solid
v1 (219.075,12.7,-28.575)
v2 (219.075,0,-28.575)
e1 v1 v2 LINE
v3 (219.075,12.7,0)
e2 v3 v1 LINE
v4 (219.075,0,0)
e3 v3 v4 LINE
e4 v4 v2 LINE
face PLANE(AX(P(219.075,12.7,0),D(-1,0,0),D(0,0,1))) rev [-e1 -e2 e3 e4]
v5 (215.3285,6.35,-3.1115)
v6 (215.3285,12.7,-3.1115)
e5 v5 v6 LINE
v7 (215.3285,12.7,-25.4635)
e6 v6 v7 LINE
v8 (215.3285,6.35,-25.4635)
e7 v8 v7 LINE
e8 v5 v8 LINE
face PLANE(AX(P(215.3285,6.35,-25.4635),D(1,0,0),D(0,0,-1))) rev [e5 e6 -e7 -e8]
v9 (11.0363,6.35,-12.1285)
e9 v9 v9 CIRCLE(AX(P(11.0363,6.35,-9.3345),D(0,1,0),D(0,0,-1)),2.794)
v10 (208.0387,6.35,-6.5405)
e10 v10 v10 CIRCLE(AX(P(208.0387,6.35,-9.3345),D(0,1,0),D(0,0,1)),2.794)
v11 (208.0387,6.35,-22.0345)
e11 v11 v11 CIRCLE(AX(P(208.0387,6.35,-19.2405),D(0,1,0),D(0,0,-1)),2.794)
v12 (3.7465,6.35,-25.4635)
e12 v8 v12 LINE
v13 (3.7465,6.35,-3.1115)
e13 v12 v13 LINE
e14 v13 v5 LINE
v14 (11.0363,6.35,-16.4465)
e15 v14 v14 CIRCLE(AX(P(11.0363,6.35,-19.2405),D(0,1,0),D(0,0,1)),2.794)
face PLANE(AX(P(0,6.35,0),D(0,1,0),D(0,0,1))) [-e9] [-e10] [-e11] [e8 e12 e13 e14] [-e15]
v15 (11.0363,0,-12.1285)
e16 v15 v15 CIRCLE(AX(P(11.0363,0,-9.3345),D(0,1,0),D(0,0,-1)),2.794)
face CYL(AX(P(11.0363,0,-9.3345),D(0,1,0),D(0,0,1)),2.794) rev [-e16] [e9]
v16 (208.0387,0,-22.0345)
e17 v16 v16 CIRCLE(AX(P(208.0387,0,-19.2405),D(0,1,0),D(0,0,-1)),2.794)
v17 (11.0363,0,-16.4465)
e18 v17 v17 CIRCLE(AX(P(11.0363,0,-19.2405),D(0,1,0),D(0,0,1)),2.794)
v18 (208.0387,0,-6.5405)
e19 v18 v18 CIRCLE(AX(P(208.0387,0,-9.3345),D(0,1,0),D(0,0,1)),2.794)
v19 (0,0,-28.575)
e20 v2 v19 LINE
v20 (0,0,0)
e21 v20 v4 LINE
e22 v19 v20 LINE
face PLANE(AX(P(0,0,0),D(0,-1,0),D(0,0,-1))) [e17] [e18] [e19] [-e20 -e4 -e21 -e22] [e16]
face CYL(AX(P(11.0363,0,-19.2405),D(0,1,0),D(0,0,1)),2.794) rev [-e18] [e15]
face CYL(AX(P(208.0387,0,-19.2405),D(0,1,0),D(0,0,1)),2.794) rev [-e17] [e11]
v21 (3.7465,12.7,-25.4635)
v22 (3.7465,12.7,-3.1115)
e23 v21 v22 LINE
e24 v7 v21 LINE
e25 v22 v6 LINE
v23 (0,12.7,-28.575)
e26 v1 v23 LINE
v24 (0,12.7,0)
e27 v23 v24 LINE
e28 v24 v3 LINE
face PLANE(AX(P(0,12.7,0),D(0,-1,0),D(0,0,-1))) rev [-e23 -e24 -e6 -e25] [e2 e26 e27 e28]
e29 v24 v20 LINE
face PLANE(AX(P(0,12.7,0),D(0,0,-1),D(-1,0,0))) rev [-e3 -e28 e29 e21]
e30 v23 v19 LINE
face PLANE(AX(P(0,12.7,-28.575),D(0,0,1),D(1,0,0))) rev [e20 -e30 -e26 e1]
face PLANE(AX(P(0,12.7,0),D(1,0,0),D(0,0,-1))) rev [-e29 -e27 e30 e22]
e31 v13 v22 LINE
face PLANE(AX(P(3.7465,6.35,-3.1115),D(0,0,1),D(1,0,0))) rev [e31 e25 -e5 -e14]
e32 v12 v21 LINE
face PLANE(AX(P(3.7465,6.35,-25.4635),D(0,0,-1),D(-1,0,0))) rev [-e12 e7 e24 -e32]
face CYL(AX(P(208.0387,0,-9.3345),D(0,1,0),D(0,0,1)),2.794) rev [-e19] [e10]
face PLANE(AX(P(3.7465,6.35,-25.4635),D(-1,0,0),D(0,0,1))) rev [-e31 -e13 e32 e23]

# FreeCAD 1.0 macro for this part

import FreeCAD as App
import Part
import Sketcher
from FreeCAD import Vector
Q = App.Units.Quantity


def add_polygon(sketch, points):
    """Adds a closed chain of lines whose ends are joined by coincident constraints."""
    first, n = sketch.GeometryCount, len(points)
    for a, b in zip(points, points[1:] + points[:1]):
        sketch.addGeometry(Part.LineSegment(App.Vector(*a, 0), App.Vector(*b, 0)), False)
    for i in range(n):
        sketch.addConstraint(Sketcher.Constraint("Coincident", first + i, 2, first + (i + 1) % n, 1))

doc = App.newDocument("Part")
body = doc.addObject("PartDesign::Body", "Body")

sketch1 = doc.addObject("Sketcher::SketchObject", "Sketch")
body.addObject(sketch1)
sketch1.AttachmentSupport = (doc.XZ_Plane, [""])
sketch1.MapMode = "FlatFace"
add_polygon(sketch1, [(0, -29), (0, 0), (219, 0), (219, -29)])
sketch1.addConstraint(Sketcher.Constraint("Vertical", 0))
sketch1.addConstraint(Sketcher.Constraint("Horizontal", 1))
sketch1.addConstraint(Sketcher.Constraint("Vertical", 2))
sketch1.addConstraint(Sketcher.Constraint("Horizontal", 3))
sketch1.addConstraint(Sketcher.Constraint("Coincident", 0, 2, -1, 1))
sketch1.addConstraint(Sketcher.Constraint("DistanceX", 1, 1, 1, 2, Q("8.625 in")))
sketch1.addConstraint(Sketcher.Constraint("DistanceY", 0, 1, 0, 2, Q("1.125 in")))
pad1 = doc.addObject("PartDesign::Pad", "Pad")
body.addObject(pad1)
pad1.Profile = sketch1
pad1.Length = Q("0.5 in")
pad1.Reversed = True

sketch2 = doc.addObject("Sketcher::SketchObject", "Sketch001")
body.addObject(sketch2)
sketch2.AttachmentSupport = (doc.XZ_Plane, [""])
sketch2.MapMode = "FlatFace"
sketch2.AttachmentOffset = App.Placement(Vector(0, 0, -0.5 * 25.4), App.Rotation())
add_polygon(sketch2, [(4, -25), (4, -3), (215, -3), (215, -25)])
sketch2.addConstraint(Sketcher.Constraint("Vertical", 0))
sketch2.addConstraint(Sketcher.Constraint("Horizontal", 1))
sketch2.addConstraint(Sketcher.Constraint("Vertical", 2))
sketch2.addConstraint(Sketcher.Constraint("Horizontal", 3))
sketch2.addConstraint(Sketcher.Constraint("DistanceX", 1, 1, 1, 2, Q("8.33 in")))
sketch2.addConstraint(Sketcher.Constraint("DistanceY", 0, 1, 0, 2, Q("0.88 in")))
sketch2.addConstraint(Sketcher.Constraint("DistanceX", -1, 1, 0, 2, Q("0.1475 in")))
sketch2.addConstraint(Sketcher.Constraint("DistanceY", 0, 2, -1, 1, Q("0.1225 in")))
pocket1 = doc.addObject("PartDesign::Pocket", "Pocket")
body.addObject(pocket1)
pocket1.Profile = sketch2
pocket1.Length = Q("0.25 in")
pocket1.Reversed = True

sketch3 = doc.addObject("Sketcher::SketchObject", "Sketch002")
body.addObject(sketch3)
sketch3.AttachmentSupport = (doc.XZ_Plane, [""])
sketch3.MapMode = "FlatFace"
sketch3.AttachmentOffset = App.Placement(Vector(0, 0, -0.25 * 25.4), App.Rotation())
sketch3.addGeometry(Part.Circle(Vector(11, -19.2, 0), Vector(0, 0, 1), 2.8), False)
sketch3.addGeometry(Part.Circle(Vector(11, -9.3, 0), Vector(0, 0, 1), 2.8), False)
sketch3.addGeometry(Part.Circle(Vector(208, -9.3, 0), Vector(0, 0, 1), 2.8), False)
sketch3.addGeometry(Part.Circle(Vector(208, -19.2, 0), Vector(0, 0, 1), 2.8), False)
sketch3.addConstraint(Sketcher.Constraint("Equal", 0, 1))
sketch3.addConstraint(Sketcher.Constraint("Equal", 1, 2))
sketch3.addConstraint(Sketcher.Constraint("Equal", 2, 3))
sketch3.addConstraint(Sketcher.Constraint("Horizontal", 1, 3, 2, 3))
sketch3.addConstraint(Sketcher.Constraint("Horizontal", 0, 3, 3, 3))
sketch3.addConstraint(Sketcher.Constraint("Vertical", 0, 3, 1, 3))
sketch3.addConstraint(Sketcher.Constraint("Vertical", 2, 3, 3, 3))
sketch3.addConstraint(Sketcher.Constraint("Diameter", 0, Q("0.22 in")))
sketch3.addConstraint(Sketcher.Constraint("DistanceY", 0, 3, 1, 3, Q("0.39 in")))
sketch3.addConstraint(Sketcher.Constraint("DistanceX", 1, 3, 2, 3, Q("7.756 in")))
sketch3.addConstraint(Sketcher.Constraint("DistanceX", -1, 1, 0, 3, Q("0.4345 in")))
sketch3.addConstraint(Sketcher.Constraint("DistanceY", 0, 3, -1, 1, Q("0.7575 in")))
pocket2 = doc.addObject("PartDesign::Pocket", "Pocket001")
body.addObject(pocket2)
pocket2.Profile = sketch3
pocket2.Type = "ThroughAll"
pocket2.Reversed = True

doc.recompute()
